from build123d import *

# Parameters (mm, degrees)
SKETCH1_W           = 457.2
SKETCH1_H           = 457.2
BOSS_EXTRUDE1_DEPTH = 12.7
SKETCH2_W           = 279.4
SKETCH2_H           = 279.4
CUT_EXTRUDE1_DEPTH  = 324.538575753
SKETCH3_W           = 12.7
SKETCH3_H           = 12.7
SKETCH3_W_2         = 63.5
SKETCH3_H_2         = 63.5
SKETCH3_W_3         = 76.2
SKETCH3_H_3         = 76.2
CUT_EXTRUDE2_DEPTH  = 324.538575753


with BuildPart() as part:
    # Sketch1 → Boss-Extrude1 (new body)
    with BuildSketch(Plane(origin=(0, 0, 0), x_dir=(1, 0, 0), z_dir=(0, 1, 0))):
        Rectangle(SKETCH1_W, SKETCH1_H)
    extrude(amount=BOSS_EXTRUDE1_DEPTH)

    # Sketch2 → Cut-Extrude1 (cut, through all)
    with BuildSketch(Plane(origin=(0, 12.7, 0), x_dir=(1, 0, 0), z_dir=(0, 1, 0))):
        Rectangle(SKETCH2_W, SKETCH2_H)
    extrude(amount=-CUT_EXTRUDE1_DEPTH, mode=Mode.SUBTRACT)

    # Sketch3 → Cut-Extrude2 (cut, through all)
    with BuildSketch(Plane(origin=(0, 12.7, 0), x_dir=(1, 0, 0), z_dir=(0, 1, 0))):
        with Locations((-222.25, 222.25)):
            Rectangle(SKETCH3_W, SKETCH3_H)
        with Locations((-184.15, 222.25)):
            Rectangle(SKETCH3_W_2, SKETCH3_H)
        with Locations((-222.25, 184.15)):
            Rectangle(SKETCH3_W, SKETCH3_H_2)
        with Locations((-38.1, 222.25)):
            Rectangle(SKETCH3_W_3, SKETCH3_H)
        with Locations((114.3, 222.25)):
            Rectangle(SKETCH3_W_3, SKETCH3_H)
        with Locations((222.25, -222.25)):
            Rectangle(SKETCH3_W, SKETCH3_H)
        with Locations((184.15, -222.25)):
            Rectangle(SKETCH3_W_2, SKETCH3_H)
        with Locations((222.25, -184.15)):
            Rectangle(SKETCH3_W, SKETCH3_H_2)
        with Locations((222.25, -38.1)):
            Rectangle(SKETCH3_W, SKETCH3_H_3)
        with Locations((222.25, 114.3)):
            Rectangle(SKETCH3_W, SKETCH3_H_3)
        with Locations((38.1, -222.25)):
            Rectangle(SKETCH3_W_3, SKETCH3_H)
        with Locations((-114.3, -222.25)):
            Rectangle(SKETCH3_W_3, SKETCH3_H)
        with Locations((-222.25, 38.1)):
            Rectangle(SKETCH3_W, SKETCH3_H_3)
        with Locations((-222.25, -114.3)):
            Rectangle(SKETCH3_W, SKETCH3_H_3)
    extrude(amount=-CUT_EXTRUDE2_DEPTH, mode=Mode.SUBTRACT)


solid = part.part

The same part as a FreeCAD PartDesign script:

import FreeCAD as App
import Part
import Sketcher
Q = App.Units.Quantity

doc = App.newDocument("Part")
body = doc.addObject("PartDesign::Body", "Body")

# Sketch on XZ plane
sketch1 = body.newObject("Sketcher::SketchObject", "Sketch")
sketch1.AttachmentSupport = (doc.getObject("XZ_Plane"), [""])
sketch1.MapMode = "FlatFace"
sketch1.addGeometry(Part.LineSegment(App.Vector(-229, -229, 0), App.Vector(-229, 229, 0)), False)
sketch1.addGeometry(Part.LineSegment(App.Vector(-229, 229, 0), App.Vector(229, 229, 0)), False)
sketch1.addGeometry(Part.LineSegment(App.Vector(229, 229, 0), App.Vector(229, -229, 0)), False)
sketch1.addGeometry(Part.LineSegment(App.Vector(229, -229, 0), App.Vector(-229, -229, 0)), False)
sketch1.addConstraint(Sketcher.Constraint("Coincident", 0, 2, 1, 1))
sketch1.addConstraint(Sketcher.Constraint("Coincident", 1, 2, 2, 1))
sketch1.addConstraint(Sketcher.Constraint("Coincident", 2, 2, 3, 1))
sketch1.addConstraint(Sketcher.Constraint("Coincident", 3, 2, 0, 1))
sketch1.addConstraint(Sketcher.Constraint("Vertical", 0))
sketch1.addConstraint(Sketcher.Constraint("Horizontal", 1))
sketch1.addConstraint(Sketcher.Constraint("Vertical", 2))
sketch1.addConstraint(Sketcher.Constraint("Horizontal", 3))
sketch1.addConstraint(Sketcher.Constraint("Symmetric", 0, 2, 2, 2, -1, 1))
sketch1.addConstraint(Sketcher.Constraint("Equal", 3, 0))
sketch1.addConstraint(Sketcher.Constraint("DistanceX", 1, 1, 1, 2, Q("18 in")))
pad1 = body.newObject("PartDesign::Pad", "Pad")
pad1.Profile = sketch1
pad1.Length = Q("0.5 in")
pad1.Reversed = True

# Sketch on XZ plane
sketch2 = body.newObject("Sketcher::SketchObject", "Sketch001")
sketch2.AttachmentSupport = (doc.getObject("XZ_Plane"), [""])
sketch2.MapMode = "FlatFace"
sketch2.AttachmentOffset = App.Placement(App.Vector(0, 0, -0.5 * 25.4), App.Rotation())
sketch2.addGeometry(Part.LineSegment(App.Vector(-140, -140, 0), App.Vector(-140, 140, 0)), False)
sketch2.addGeometry(Part.LineSegment(App.Vector(-140, 140, 0), App.Vector(140, 140, 0)), False)
sketch2.addGeometry(Part.LineSegment(App.Vector(140, 140, 0), App.Vector(140, -140, 0)), False)
sketch2.addGeometry(Part.LineSegment(App.Vector(140, -140, 0), App.Vector(-140, -140, 0)), False)
sketch2.addConstraint(Sketcher.Constraint("Coincident", 0, 2, 1, 1))
sketch2.addConstraint(Sketcher.Constraint("Coincident", 1, 2, 2, 1))
sketch2.addConstraint(Sketcher.Constraint("Coincident", 2, 2, 3, 1))
sketch2.addConstraint(Sketcher.Constraint("Coincident", 3, 2, 0, 1))
sketch2.addConstraint(Sketcher.Constraint("Vertical", 0))
sketch2.addConstraint(Sketcher.Constraint("Horizontal", 1))
sketch2.addConstraint(Sketcher.Constraint("Vertical", 2))
sketch2.addConstraint(Sketcher.Constraint("Horizontal", 3))
sketch2.addConstraint(Sketcher.Constraint("Symmetric", 0, 2, 2, 2, -1, 1))
sketch2.addConstraint(Sketcher.Constraint("Equal", 3, 0))
sketch2.addConstraint(Sketcher.Constraint("DistanceX", 1, 1, 1, 2, Q("11 in")))
pocket1 = body.newObject("PartDesign::Pocket", "Pocket")
pocket1.Profile = sketch2
pocket1.Type = "ThroughAll"
pocket1.Reversed = True

# Sketch on XZ plane
sketch3 = body.newObject("Sketcher::SketchObject", "Sketch002")
sketch3.AttachmentSupport = (doc.getObject("XZ_Plane"), [""])
sketch3.MapMode = "FlatFace"
sketch3.AttachmentOffset = App.Placement(App.Vector(0, 0, -0.5 * 25.4), App.Rotation())
sketch3.addGeometry(Part.LineSegment(App.Vector(-229, -229, 0), App.Vector(-229, -152, 0)), False)
sketch3.addGeometry(Part.LineSegment(App.Vector(-229, -152, 0), App.Vector(-216, -152, 0)), False)
sketch3.addGeometry(Part.LineSegment(App.Vector(-216, -152, 0), App.Vector(-216, -216, 0)), False)
sketch3.addGeometry(Part.LineSegment(App.Vector(-216, -216, 0), App.Vector(-152, -216, 0)), False)
sketch3.addGeometry(Part.LineSegment(App.Vector(-152, -216, 0), App.Vector(-152, -229, 0)), False)
sketch3.addGeometry(Part.LineSegment(App.Vector(-152, -229, 0), App.Vector(-229, -229, 0)), False)
sketch3.addGeometry(Part.LineSegment(App.Vector(-76, -229, 0), App.Vector(-76, -216, 0)), False)
sketch3.addGeometry(Part.LineSegment(App.Vector(-76, -216, 0), App.Vector(0, -216, 0)), False)
sketch3.addGeometry(Part.LineSegment(App.Vector(0, -216, 0), App.Vector(0, -229, 0)), False)
sketch3.addGeometry(Part.LineSegment(App.Vector(0, -229, 0), App.Vector(-76, -229, 0)), False)
sketch3.addGeometry(Part.LineSegment(App.Vector(76, -229, 0), App.Vector(76, -216, 0)), False)
sketch3.addGeometry(Part.LineSegment(App.Vector(76, -216, 0), App.Vector(152, -216, 0)), False)
sketch3.addGeometry(Part.LineSegment(App.Vector(152, -216, 0), App.Vector(152, -229, 0)), False)
sketch3.addGeometry(Part.LineSegment(App.Vector(152, -229, 0), App.Vector(76, -229, 0)), False)
sketch3.addGeometry(Part.LineSegment(App.Vector(229, 229, 0), App.Vector(229, 152, 0)), False)
sketch3.addGeometry(Part.LineSegment(App.Vector(229, 152, 0), App.Vector(216, 152, 0)), False)
sketch3.addGeometry(Part.LineSegment(App.Vector(216, 152, 0), App.Vector(216, 216, 0)), False)
sketch3.addGeometry(Part.LineSegment(App.Vector(216, 216, 0), App.Vector(152, 216, 0)), False)
sketch3.addGeometry(Part.LineSegment(App.Vector(152, 216, 0), App.Vector(152, 229, 0)), False)
sketch3.addGeometry(Part.LineSegment(App.Vector(152, 229, 0), App.Vector(229, 229, 0)), False)
sketch3.addGeometry(Part.LineSegment(App.Vector(216, 0, 0), App.Vector(216, 76, 0)), False)
sketch3.addGeometry(Part.LineSegment(App.Vector(216, 76, 0), App.Vector(229, 76, 0)), False)
sketch3.addGeometry(Part.LineSegment(App.Vector(229, 76, 0), App.Vector(229, 0, 0)), False)
sketch3.addGeometry(Part.LineSegment(App.Vector(229, 0, 0), App.Vector(216, 0, 0)), False)
sketch3.addGeometry(Part.LineSegment(App.Vector(216, -152, 0), App.Vector(216, -76, 0)), False)
sketch3.addGeometry(Part.LineSegment(App.Vector(216, -76, 0), App.Vector(229, -76, 0)), False)
sketch3.addGeometry(Part.LineSegment(App.Vector(229, -76, 0), App.Vector(229, -152, 0)), False)
sketch3.addGeometry(Part.LineSegment(App.Vector(229, -152, 0), App.Vector(216, -152, 0)), False)
sketch3.addGeometry(Part.LineSegment(App.Vector(0, 216, 0), App.Vector(0, 229, 0)), False)
sketch3.addGeometry(Part.LineSegment(App.Vector(0, 229, 0), App.Vector(76, 229, 0)), False)
sketch3.addGeometry(Part.LineSegment(App.Vector(76, 229, 0), App.Vector(76, 216, 0)), False)
sketch3.addGeometry(Part.LineSegment(App.Vector(76, 216, 0), App.Vector(0, 216, 0)), False)
sketch3.addGeometry(Part.LineSegment(App.Vector(-152, 216, 0), App.Vector(-152, 229, 0)), False)
sketch3.addGeometry(Part.LineSegment(App.Vector(-152, 229, 0), App.Vector(-76, 229, 0)), False)
sketch3.addGeometry(Part.LineSegment(App.Vector(-76, 229, 0), App.Vector(-76, 216, 0)), False)
sketch3.addGeometry(Part.LineSegment(App.Vector(-76, 216, 0), App.Vector(-152, 216, 0)), False)
sketch3.addGeometry(Part.LineSegment(App.Vector(-229, -76, 0), App.Vector(-229, 0, 0)), False)
sketch3.addGeometry(Part.LineSegment(App.Vector(-229, 0, 0), App.Vector(-216, 0, 0)), False)
sketch3.addGeometry(Part.LineSegment(App.Vector(-216, 0, 0), App.Vector(-216, -76, 0)), False)
sketch3.addGeometry(Part.LineSegment(App.Vector(-216, -76, 0), App.Vector(-229, -76, 0)), False)
sketch3.addGeometry(Part.LineSegment(App.Vector(-229, 76, 0), App.Vector(-229, 152, 0)), False)
sketch3.addGeometry(Part.LineSegment(App.Vector(-229, 152, 0), App.Vector(-216, 152, 0)), False)
sketch3.addGeometry(Part.LineSegment(App.Vector(-216, 152, 0), App.Vector(-216, 76, 0)), False)
sketch3.addGeometry(Part.LineSegment(App.Vector(-216, 76, 0), App.Vector(-229, 76, 0)), False)
sketch3.addConstraint(Sketcher.Constraint("Coincident", 0, 2, 1, 1))
sketch3.addConstraint(Sketcher.Constraint("Coincident", 1, 2, 2, 1))
sketch3.addConstraint(Sketcher.Constraint("Coincident", 2, 2, 3, 1))
sketch3.addConstraint(Sketcher.Constraint("Coincident", 3, 2, 4, 1))
sketch3.addConstraint(Sketcher.Constraint("Coincident", 4, 2, 5, 1))
sketch3.addConstraint(Sketcher.Constraint("Coincident", 5, 2, 0, 1))
sketch3.addConstraint(Sketcher.Constraint("Coincident", 6, 2, 7, 1))
sketch3.addConstraint(Sketcher.Constraint("Coincident", 7, 2, 8, 1))
sketch3.addConstraint(Sketcher.Constraint("Coincident", 8, 2, 9, 1))
sketch3.addConstraint(Sketcher.Constraint("Coincident", 9, 2, 6, 1))
sketch3.addConstraint(Sketcher.Constraint("Coincident", 10, 2, 11, 1))
sketch3.addConstraint(Sketcher.Constraint("Coincident", 11, 2, 12, 1))
sketch3.addConstraint(Sketcher.Constraint("Coincident", 12, 2, 13, 1))
sketch3.addConstraint(Sketcher.Constraint("Coincident", 13, 2, 10, 1))
sketch3.addConstraint(Sketcher.Constraint("Coincident", 14, 2, 15, 1))
sketch3.addConstraint(Sketcher.Constraint("Coincident", 15, 2, 16, 1))
sketch3.addConstraint(Sketcher.Constraint("Coincident", 16, 2, 17, 1))
sketch3.addConstraint(Sketcher.Constraint("Coincident", 17, 2, 18, 1))
sketch3.addConstraint(Sketcher.Constraint("Coincident", 18, 2, 19, 1))
sketch3.addConstraint(Sketcher.Constraint("Coincident", 19, 2, 14, 1))
sketch3.addConstraint(Sketcher.Constraint("Coincident", 20, 2, 21, 1))
sketch3.addConstraint(Sketcher.Constraint("Coincident", 21, 2, 22, 1))
sketch3.addConstraint(Sketcher.Constraint("Coincident", 22, 2, 23, 1))
sketch3.addConstraint(Sketcher.Constraint("Coincident", 23, 2, 20, 1))
sketch3.addConstraint(Sketcher.Constraint("Coincident", 24, 2, 25, 1))
sketch3.addConstraint(Sketcher.Constraint("Coincident", 25, 2, 26, 1))
sketch3.addConstraint(Sketcher.Constraint("Coincident", 26, 2, 27, 1))
sketch3.addConstraint(Sketcher.Constraint("Coincident", 27, 2, 24, 1))
sketch3.addConstraint(Sketcher.Constraint("Coincident", 28, 2, 29, 1))
sketch3.addConstraint(Sketcher.Constraint("Coincident", 29, 2, 30, 1))
sketch3.addConstraint(Sketcher.Constraint("Coincident", 30, 2, 31, 1))
sketch3.addConstraint(Sketcher.Constraint("Coincident", 31, 2, 28, 1))
sketch3.addConstraint(Sketcher.Constraint("Coincident", 32, 2, 33, 1))
sketch3.addConstraint(Sketcher.Constraint("Coincident", 33, 2, 34, 1))
sketch3.addConstraint(Sketcher.Constraint("Coincident", 34, 2, 35, 1))
sketch3.addConstraint(Sketcher.Constraint("Coincident", 35, 2, 32, 1))
sketch3.addConstraint(Sketcher.Constraint("Coincident", 36, 2, 37, 1))
sketch3.addConstraint(Sketcher.Constraint("Coincident", 37, 2, 38, 1))
sketch3.addConstraint(Sketcher.Constraint("Coincident", 38, 2, 39, 1))
sketch3.addConstraint(Sketcher.Constraint("Coincident", 39, 2, 36, 1))
sketch3.addConstraint(Sketcher.Constraint("Coincident", 40, 2, 41, 1))
sketch3.addConstraint(Sketcher.Constraint("Coincident", 41, 2, 42, 1))
sketch3.addConstraint(Sketcher.Constraint("Coincident", 42, 2, 43, 1))
sketch3.addConstraint(Sketcher.Constraint("Coincident", 43, 2, 40, 1))
sketch3.addConstraint(Sketcher.Constraint("Vertical", 0))
sketch3.addConstraint(Sketcher.Constraint("Horizontal", 1))
sketch3.addConstraint(Sketcher.Constraint("Vertical", 2))
sketch3.addConstraint(Sketcher.Constraint("Horizontal", 3))
sketch3.addConstraint(Sketcher.Constraint("Vertical", 4))
sketch3.addConstraint(Sketcher.Constraint("Horizontal", 5))
sketch3.addConstraint(Sketcher.Constraint("Vertical", 6))
sketch3.addConstraint(Sketcher.Constraint("Horizontal", 7))
sketch3.addConstraint(Sketcher.Constraint("Vertical", 8))
sketch3.addConstraint(Sketcher.Constraint("Horizontal", 9))
sketch3.addConstraint(Sketcher.Constraint("Vertical", 10))
sketch3.addConstraint(Sketcher.Constraint("Horizontal", 11))
sketch3.addConstraint(Sketcher.Constraint("Vertical", 12))
sketch3.addConstraint(Sketcher.Constraint("Horizontal", 13))
sketch3.addConstraint(Sketcher.Constraint("Vertical", 14))
sketch3.addConstraint(Sketcher.Constraint("Horizontal", 15))
sketch3.addConstraint(Sketcher.Constraint("Vertical", 16))
sketch3.addConstraint(Sketcher.Constraint("Horizontal", 17))
sketch3.addConstraint(Sketcher.Constraint("Vertical", 18))
sketch3.addConstraint(Sketcher.Constraint("Horizontal", 19))
sketch3.addConstraint(Sketcher.Constraint("Vertical", 20))
sketch3.addConstraint(Sketcher.Constraint("Horizontal", 21))
sketch3.addConstraint(Sketcher.Constraint("Vertical", 22))
sketch3.addConstraint(Sketcher.Constraint("Horizontal", 23))
sketch3.addConstraint(Sketcher.Constraint("Vertical", 24))
sketch3.addConstraint(Sketcher.Constraint("Horizontal", 25))
sketch3.addConstraint(Sketcher.Constraint("Vertical", 26))
sketch3.addConstraint(Sketcher.Constraint("Horizontal", 27))
sketch3.addConstraint(Sketcher.Constraint("Vertical", 28))
sketch3.addConstraint(Sketcher.Constraint("Horizontal", 29))
sketch3.addConstraint(Sketcher.Constraint("Vertical", 30))
sketch3.addConstraint(Sketcher.Constraint("Horizontal", 31))
sketch3.addConstraint(Sketcher.Constraint("Vertical", 32))
sketch3.addConstraint(Sketcher.Constraint("Horizontal", 33))
sketch3.addConstraint(Sketcher.Constraint("Vertical", 34))
sketch3.addConstraint(Sketcher.Constraint("Horizontal", 35))
sketch3.addConstraint(Sketcher.Constraint("Vertical", 36))
sketch3.addConstraint(Sketcher.Constraint("Horizontal", 37))
sketch3.addConstraint(Sketcher.Constraint("Vertical", 38))
sketch3.addConstraint(Sketcher.Constraint("Horizontal", 39))
sketch3.addConstraint(Sketcher.Constraint("Vertical", 40))
sketch3.addConstraint(Sketcher.Constraint("Horizontal", 41))
sketch3.addConstraint(Sketcher.Constraint("Vertical", 42))
sketch3.addConstraint(Sketcher.Constraint("Horizontal", 43))
sketch3.addConstraint(Sketcher.Constraint("Symmetric", 0, 2, 14, 2, -1, 1))
sketch3.addConstraint(Sketcher.Constraint("Symmetric", 2, 2, 16, 2, -1, 1))
sketch3.addConstraint(Sketcher.Constraint("Symmetric", 4, 2, 18, 2, -1, 1))
sketch3.addConstraint(Sketcher.Constraint("Symmetric", 8, 2, 28, 2, -1, 1))
sketch3.addConstraint(Sketcher.Constraint("Symmetric", 6, 2, 30, 2, -1, 1))
sketch3.addConstraint(Sketcher.Constraint("Symmetric", 12, 2, 32, 2, -1, 1))
sketch3.addConstraint(Sketcher.Constraint("Symmetric", 10, 2, 34, 2, -1, 1))
sketch3.addConstraint(Sketcher.Constraint("Symmetric", 22, 2, 36, 2, -1, 1))
sketch3.addConstraint(Sketcher.Constraint("Symmetric", 20, 2, 38, 2, -1, 1))
sketch3.addConstraint(Sketcher.Constraint("Symmetric", 26, 2, 40, 2, -1, 1))
sketch3.addConstraint(Sketcher.Constraint("Symmetric", 24, 2, 42, 2, -1, 1))
sketch3.addConstraint(Sketcher.Constraint("Symmetric", 6, 2, 10, 2, -2))
sketch3.addConstraint(Sketcher.Constraint("Symmetric", 3, 2, 11, 2, -2))
sketch3.addConstraint(Sketcher.Constraint("Symmetric", 0, 2, 26, 2, -2))
sketch3.addConstraint(Sketcher.Constraint("Symmetric", 24, 2, 38, 2, -2))
sketch3.addConstraint(Sketcher.Constraint("PointOnObject", 7, 2, -2))
sketch3.addConstraint(Sketcher.Constraint("PointOnObject", 22, 2, -1))
sketch3.addConstraint(Sketcher.Constraint("Horizontal", 5, 2, 8, 2))
sketch3.addConstraint(Sketcher.Constraint("Horizontal", 9, 2, 12, 2))
sketch3.addConstraint(Sketcher.Constraint("Vertical", 16, 2, 20, 2))
sketch3.addConstraint(Sketcher.Constraint("Vertical", 19, 2, 21, 2))
sketch3.addConstraint(Sketcher.Constraint("Equal", 5, 7))
sketch3.addConstraint(Sketcher.Constraint("Equal", 9, 11))
sketch3.addConstraint(Sketcher.Constraint("Equal", 35, 0))
sketch3.addConstraint(Sketcher.Constraint("Equal", 17, 2))
sketch3.addConstraint(Sketcher.Constraint("Equal", 14, 20))
sketch3.addConstraint(Sketcher.Constraint("Equal", 22, 24))
sketch3.addConstraint(Sketcher.Constraint("DistanceX", 5, 2, 5, 1, Q("3 in")))
sketch3.addConstraint(Sketcher.Constraint("DistanceX", 1, 1, 1, 2, Q("0.5 in")))
pocket2 = body.newObject("PartDesign::Pocket", "Pocket001")
pocket2.Profile = sketch3
pocket2.Type = "ThroughAll"
pocket2.Reversed = True

doc.recompute()
